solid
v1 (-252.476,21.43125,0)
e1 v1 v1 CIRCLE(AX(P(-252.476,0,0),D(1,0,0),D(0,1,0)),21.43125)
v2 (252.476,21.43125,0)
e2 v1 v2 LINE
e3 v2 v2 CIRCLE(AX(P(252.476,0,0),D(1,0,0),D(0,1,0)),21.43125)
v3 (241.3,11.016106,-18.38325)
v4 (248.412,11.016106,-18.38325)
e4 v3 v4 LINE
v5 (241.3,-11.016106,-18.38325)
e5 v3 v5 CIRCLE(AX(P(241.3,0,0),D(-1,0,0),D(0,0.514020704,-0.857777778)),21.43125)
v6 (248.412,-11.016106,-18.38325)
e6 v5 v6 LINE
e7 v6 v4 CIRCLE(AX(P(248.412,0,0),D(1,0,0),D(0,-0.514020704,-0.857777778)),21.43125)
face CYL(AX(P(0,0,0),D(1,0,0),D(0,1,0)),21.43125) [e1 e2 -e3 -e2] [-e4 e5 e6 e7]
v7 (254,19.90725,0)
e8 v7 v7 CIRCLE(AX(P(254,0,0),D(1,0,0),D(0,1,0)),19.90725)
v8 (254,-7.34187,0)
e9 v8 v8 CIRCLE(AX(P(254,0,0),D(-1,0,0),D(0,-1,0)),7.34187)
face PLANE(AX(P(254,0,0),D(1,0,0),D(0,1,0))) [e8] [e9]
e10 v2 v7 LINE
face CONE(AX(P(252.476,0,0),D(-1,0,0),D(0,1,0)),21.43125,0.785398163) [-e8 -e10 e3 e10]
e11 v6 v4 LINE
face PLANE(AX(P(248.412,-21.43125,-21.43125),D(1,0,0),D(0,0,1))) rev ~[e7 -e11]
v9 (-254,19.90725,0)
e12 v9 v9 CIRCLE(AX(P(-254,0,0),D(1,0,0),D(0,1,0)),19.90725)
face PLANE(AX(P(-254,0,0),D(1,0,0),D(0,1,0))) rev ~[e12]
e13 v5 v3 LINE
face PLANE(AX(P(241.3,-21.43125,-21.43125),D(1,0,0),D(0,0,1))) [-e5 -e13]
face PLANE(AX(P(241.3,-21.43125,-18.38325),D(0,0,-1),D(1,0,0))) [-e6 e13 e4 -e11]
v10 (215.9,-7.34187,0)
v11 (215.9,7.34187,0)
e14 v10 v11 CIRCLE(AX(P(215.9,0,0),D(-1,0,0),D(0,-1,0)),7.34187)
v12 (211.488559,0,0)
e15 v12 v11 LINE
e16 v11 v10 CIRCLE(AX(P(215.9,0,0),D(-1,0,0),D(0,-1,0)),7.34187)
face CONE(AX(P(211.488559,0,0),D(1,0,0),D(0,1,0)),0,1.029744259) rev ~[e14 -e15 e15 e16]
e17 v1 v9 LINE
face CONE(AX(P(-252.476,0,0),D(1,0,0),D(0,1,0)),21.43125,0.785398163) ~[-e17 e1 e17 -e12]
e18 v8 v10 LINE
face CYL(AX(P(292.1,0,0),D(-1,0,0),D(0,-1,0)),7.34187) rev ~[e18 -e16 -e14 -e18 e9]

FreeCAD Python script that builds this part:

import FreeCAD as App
import Part
import Sketcher

V = App.Vector
Q = App.Units.Quantity


def edges_at(feature, points):
    """Names of the edges that pass closest to the given points."""
    edges = feature.Shape.Edges
    near = lambda p: min(range(len(edges)), key=lambda i: edges[i].distToShape(Part.Vertex(*p))[0])
    return sorted({f"Edge{near(p) + 1}" for p in points})

doc = App.newDocument("Part")
body = doc.addObject("PartDesign::Body", "Body")

# Sketch on YZ plane
sketch1 = doc.addObject("Sketcher::SketchObject", "Sketch")
body.addObject(sketch1)
sketch1.AttachmentSupport = (doc.YZ_Plane, [""])
sketch1.MapMode = "FlatFace"
sketch1.addGeometry(Part.Circle(V(0, 0, 0), V(0, 0, 1), 21.43125), False)
sketch1.addConstraint(Sketcher.Constraint("Coincident", 0, 3, -1, 1))
sketch1.addConstraint(Sketcher.Constraint("Diameter", 0, Q("1.6875 in")))
pad1 = doc.addObject("PartDesign::Pad", "Pad")
body.addObject(pad1)
pad1.Profile = sketch1
pad1.Length = Q("20 in")
pad1.Midplane = True
doc.recompute()

chamfer = doc.addObject("PartDesign::Chamfer", "Chamfer")
body.addObject(chamfer)
chamfer.Base = (pad1, edges_at(pad1, [(254, -21.431, 0), (-254, -21.431, 0)]))
chamfer.Size = Q("0.06 in")

# Sketch on YZ plane
sketch2 = doc.addObject("Sketcher::SketchObject", "Sketch001")
body.addObject(sketch2)
sketch2.AttachmentSupport = (doc.YZ_Plane, [""])
sketch2.MapMode = "FlatFace"
sketch2.AttachmentOffset = App.Placement(V(0, 0, 10 * 25.4), App.Rotation())
sketch2.addGeometry(Part.Circle(V(0, 0, 0), V(0, 0, 1), 7.34187), False)
sketch2.addConstraint(Sketcher.Constraint("Coincident", 0, 3, -1, 1))
sketch2.addConstraint(Sketcher.Constraint("Diameter", 0, Q("0.5781 in")))
doc.recompute()
hole = doc.addObject("PartDesign::Hole", "Hole")
body.addObject(hole)
hole.Profile = sketch2
hole.ThreadType = "None"
hole.Diameter = Q("0.5781 in")
hole.DepthType = "Dimension"
hole.Depth = Q("1.5 in")
hole.DrillPoint = "Angled"
hole.DrillPointAngle = 118

# Sketch on XZ plane
sketch3 = doc.addObject("Sketcher::SketchObject", "Sketch002")
body.addObject(sketch3)
sketch3.AttachmentSupport = (doc.XZ_Plane, [""])
sketch3.MapMode = "FlatFace"
sketch3.AttachmentOffset = App.Placement(V(0, 0, 0.84375 * 25.4), App.Rotation())
sketch3.addGeometry(Part.LineSegment(V(241.3, -18.38325, 0), V(241.3, -21.43125, 0)), False)
sketch3.addGeometry(Part.LineSegment(V(241.3, -21.43125, 0), V(248.412, -21.43125, 0)), False)
sketch3.addGeometry(Part.LineSegment(V(248.412, -21.43125, 0), V(248.412, -18.38325, 0)), False)
sketch3.addGeometry(Part.LineSegment(V(248.412, -18.38325, 0), V(241.3, -18.38325, 0)), False)
sketch3.addConstraint(Sketcher.Constraint("Coincident", 0, 2, 1, 1))
sketch3.addConstraint(Sketcher.Constraint("Coincident", 1, 2, 2, 1))
sketch3.addConstraint(Sketcher.Constraint("Coincident", 2, 2, 3, 1))
sketch3.addConstraint(Sketcher.Constraint("Coincident", 3, 2, 0, 1))
sketch3.addConstraint(Sketcher.Constraint("Vertical", 0))
sketch3.addConstraint(Sketcher.Constraint("Horizontal", 1))
sketch3.addConstraint(Sketcher.Constraint("Vertical", 2))
sketch3.addConstraint(Sketcher.Constraint("Horizontal", 3))
sketch3.addConstraint(Sketcher.Constraint("DistanceX", 1, 1, 1, 2, Q("0.28 in")))
sketch3.addConstraint(Sketcher.Constraint("DistanceY", 0, 2, 0, 1, Q("0.12 in")))
sketch3.addConstraint(Sketcher.Constraint("DistanceX", -1, 1, 0, 2, Q("9.5 in")))
sketch3.addConstraint(Sketcher.Constraint("DistanceY", 0, 2, -1, 1, Q("0.84375 in")))
pocket1 = doc.addObject("PartDesign::Pocket", "Pocket")
body.addObject(pocket1)
pocket1.Profile = sketch3
pocket1.Type = "ThroughAll"

doc.recompute()
